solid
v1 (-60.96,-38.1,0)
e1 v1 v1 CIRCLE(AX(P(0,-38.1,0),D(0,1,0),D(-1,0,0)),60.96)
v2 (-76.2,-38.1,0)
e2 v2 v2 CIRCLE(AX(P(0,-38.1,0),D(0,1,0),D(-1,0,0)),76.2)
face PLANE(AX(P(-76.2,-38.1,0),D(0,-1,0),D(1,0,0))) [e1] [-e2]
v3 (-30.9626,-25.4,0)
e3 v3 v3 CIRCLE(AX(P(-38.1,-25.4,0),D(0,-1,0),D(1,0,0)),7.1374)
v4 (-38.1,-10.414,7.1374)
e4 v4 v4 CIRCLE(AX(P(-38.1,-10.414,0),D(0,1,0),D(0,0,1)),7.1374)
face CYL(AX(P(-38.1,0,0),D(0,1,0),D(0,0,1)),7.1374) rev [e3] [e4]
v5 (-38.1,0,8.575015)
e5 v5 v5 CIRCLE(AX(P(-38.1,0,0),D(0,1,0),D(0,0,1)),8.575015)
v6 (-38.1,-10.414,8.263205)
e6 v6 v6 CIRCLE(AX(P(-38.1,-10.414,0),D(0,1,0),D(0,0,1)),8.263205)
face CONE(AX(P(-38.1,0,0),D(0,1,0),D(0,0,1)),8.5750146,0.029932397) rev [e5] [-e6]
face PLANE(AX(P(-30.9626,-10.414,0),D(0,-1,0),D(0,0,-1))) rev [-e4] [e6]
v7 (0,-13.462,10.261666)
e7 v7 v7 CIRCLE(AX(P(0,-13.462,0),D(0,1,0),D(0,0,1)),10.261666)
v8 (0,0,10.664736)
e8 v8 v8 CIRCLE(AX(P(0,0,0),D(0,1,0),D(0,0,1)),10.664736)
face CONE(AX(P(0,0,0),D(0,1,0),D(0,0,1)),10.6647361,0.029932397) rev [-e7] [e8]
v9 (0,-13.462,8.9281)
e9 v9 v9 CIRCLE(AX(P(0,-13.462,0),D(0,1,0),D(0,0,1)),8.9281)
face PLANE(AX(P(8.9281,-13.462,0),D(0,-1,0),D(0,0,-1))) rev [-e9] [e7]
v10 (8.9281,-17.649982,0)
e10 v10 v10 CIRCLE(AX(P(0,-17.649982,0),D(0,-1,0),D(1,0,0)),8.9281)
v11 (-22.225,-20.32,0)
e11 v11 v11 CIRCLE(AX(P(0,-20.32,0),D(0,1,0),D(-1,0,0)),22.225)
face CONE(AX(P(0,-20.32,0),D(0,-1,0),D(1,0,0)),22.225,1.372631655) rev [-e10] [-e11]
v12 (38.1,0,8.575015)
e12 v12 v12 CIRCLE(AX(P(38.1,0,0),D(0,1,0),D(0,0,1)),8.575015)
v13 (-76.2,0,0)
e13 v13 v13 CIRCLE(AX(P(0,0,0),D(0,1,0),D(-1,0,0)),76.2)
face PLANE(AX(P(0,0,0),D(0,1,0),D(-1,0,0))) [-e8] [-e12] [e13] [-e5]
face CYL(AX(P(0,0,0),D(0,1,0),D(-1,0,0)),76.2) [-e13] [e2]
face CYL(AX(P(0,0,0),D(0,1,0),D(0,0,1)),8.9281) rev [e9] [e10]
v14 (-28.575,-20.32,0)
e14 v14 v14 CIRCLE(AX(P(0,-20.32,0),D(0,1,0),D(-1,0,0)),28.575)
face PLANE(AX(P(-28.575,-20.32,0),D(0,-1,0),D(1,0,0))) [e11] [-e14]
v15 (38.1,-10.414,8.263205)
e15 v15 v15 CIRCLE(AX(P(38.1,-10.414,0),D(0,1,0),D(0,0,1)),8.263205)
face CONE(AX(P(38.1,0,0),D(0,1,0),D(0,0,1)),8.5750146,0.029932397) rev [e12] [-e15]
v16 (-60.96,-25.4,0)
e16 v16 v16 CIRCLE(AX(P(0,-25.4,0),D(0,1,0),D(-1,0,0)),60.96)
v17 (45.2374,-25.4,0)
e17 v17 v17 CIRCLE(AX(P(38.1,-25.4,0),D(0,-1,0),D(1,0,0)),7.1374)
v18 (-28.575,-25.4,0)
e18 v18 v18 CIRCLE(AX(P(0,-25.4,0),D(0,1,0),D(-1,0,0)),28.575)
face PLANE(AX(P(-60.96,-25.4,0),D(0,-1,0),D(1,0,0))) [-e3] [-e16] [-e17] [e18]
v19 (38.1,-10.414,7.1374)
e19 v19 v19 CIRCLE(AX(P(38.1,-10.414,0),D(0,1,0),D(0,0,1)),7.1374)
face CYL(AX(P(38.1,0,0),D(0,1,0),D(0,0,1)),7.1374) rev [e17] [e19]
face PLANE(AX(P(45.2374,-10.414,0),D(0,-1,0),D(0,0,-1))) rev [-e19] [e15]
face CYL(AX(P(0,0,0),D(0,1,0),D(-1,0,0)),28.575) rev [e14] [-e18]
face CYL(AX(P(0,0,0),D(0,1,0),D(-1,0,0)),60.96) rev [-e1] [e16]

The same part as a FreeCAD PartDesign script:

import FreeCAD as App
import Part
import Sketcher

V = App.Vector
Q = App.Units.Quantity

doc = App.newDocument("Part")
body = doc.addObject("PartDesign::Body", "Body")

sketch1 = body.newObject("Sketcher::SketchObject", "Sketch")
sketch1.AttachmentSupport = (doc.getObject("XY_Plane"), [""])
sketch1.MapMode = "FlatFace"
sketch1.addGeometry(Part.LineSegment(V(0, 0, 0), V(-76, 0, 0)), False)
sketch1.addGeometry(Part.LineSegment(V(-76, 0, 0), V(-76, -38, 0)), False)
sketch1.addGeometry(Part.LineSegment(V(-76, -38, 0), V(-61, -38, 0)), False)
sketch1.addGeometry(Part.LineSegment(V(-61, -38, 0), V(-61, -25, 0)), False)
sketch1.addGeometry(Part.LineSegment(V(-61, -25, 0), V(-29, -25, 0)), False)
sketch1.addGeometry(Part.LineSegment(V(-29, -25, 0), V(-29, -20, 0)), False)
sketch1.addGeometry(Part.LineSegment(V(-29, -20, 0), V(-22, -20, 0)), False)
sketch1.addGeometry(Part.LineSegment(V(-22, -20, 0), V(0, -16, 0)), False)
sketch1.addGeometry(Part.LineSegment(V(0, -16, 0), V(0, 0, 0)), False)
sketch1.addConstraint(Sketcher.Constraint("Coincident", 0, 2, 1, 1))
sketch1.addConstraint(Sketcher.Constraint("Coincident", 1, 2, 2, 1))
sketch1.addConstraint(Sketcher.Constraint("Coincident", 2, 2, 3, 1))
sketch1.addConstraint(Sketcher.Constraint("Coincident", 3, 2, 4, 1))
sketch1.addConstraint(Sketcher.Constraint("Coincident", 4, 2, 5, 1))
sketch1.addConstraint(Sketcher.Constraint("Coincident", 5, 2, 6, 1))
sketch1.addConstraint(Sketcher.Constraint("Coincident", 6, 2, 7, 1))
sketch1.addConstraint(Sketcher.Constraint("Coincident", 7, 2, 8, 1))
sketch1.addConstraint(Sketcher.Constraint("Coincident", 8, 2, 0, 1))
sketch1.addConstraint(Sketcher.Constraint("Horizontal", 0))
sketch1.addConstraint(Sketcher.Constraint("Vertical", 1))
sketch1.addConstraint(Sketcher.Constraint("Horizontal", 2))
sketch1.addConstraint(Sketcher.Constraint("Vertical", 3))
sketch1.addConstraint(Sketcher.Constraint("Horizontal", 4))
sketch1.addConstraint(Sketcher.Constraint("Vertical", 5))
sketch1.addConstraint(Sketcher.Constraint("Horizontal", 6))
sketch1.addConstraint(Sketcher.Constraint("Vertical", 8))
sketch1.addConstraint(Sketcher.Constraint("Coincident", 8, 2, -1, 1))
sketch1.addConstraint(Sketcher.Constraint("DistanceX", 0, 2, 0, 1, Q("3 in")))
sketch1.addConstraint(Sketcher.Constraint("DistanceX", 2, 1, 2, 2, Q("0.6 in")))
sketch1.addConstraint(Sketcher.Constraint("DistanceY", 1, 2, 1, 1, Q("1.5 in")))
sketch1.addConstraint(Sketcher.Constraint("DistanceY", 3, 1, 3, 2, Q("0.5 in")))
sketch1.addConstraint(Sketcher.Constraint("DistanceY", 5, 1, 5, 2, Q("0.2 in")))
sketch1.addConstraint(Sketcher.Constraint("DistanceX", 6, 1, 6, 2, Q("0.25 in")))
sketch1.addConstraint(Sketcher.Constraint("DistanceX", 4, 1, 4, 2, Q("1.275 in")))
sketch1.addConstraint(Sketcher.Constraint("DistanceY", 8, 1, 8, 2, Q("0.6243 in")))
revolution = body.newObject("PartDesign::Revolution", "Revolution")
revolution.Profile = sketch1
revolution.ReferenceAxis = (sketch1, ["V_Axis"])
revolution.Angle = 360

sketch2 = body.newObject("Sketcher::SketchObject", "Sketch001")
sketch2.AttachmentSupport = (doc.getObject("YZ_Plane"), [""])
sketch2.MapMode = "FlatFace"
sketch2.addGeometry(Part.LineSegment(V(-38.1, 0, 0), V(0, 0, 0)), False)
sketch2.addGeometry(Part.LineSegment(V(0, 0, 0), V(0, 10.7, 0)), False)
sketch2.addGeometry(Part.LineSegment(V(0, 10.7, 0), V(-13.5, 10.3, 0)), False)
sketch2.addGeometry(Part.LineSegment(V(-13.5, 10.3, 0), V(-13.5, 8.9, 0)), False)
sketch2.addGeometry(Part.LineSegment(V(-13.5, 8.9, 0), V(-38.1, 8.9, 0)), False)
sketch2.addGeometry(Part.LineSegment(V(-38.1, 8.9, 0), V(-38.1, 0, 0)), False)
sketch2.addConstraint(Sketcher.Constraint("Coincident", 0, 2, 1, 1))
sketch2.addConstraint(Sketcher.Constraint("Coincident", 1, 2, 2, 1))
sketch2.addConstraint(Sketcher.Constraint("Coincident", 2, 2, 3, 1))
sketch2.addConstraint(Sketcher.Constraint("Coincident", 3, 2, 4, 1))
sketch2.addConstraint(Sketcher.Constraint("Coincident", 4, 2, 5, 1))
sketch2.addConstraint(Sketcher.Constraint("Coincident", 5, 2, 0, 1))
sketch2.addConstraint(Sketcher.Constraint("Horizontal", 0))
sketch2.addConstraint(Sketcher.Constraint("Vertical", 1))
sketch2.addConstraint(Sketcher.Constraint("Vertical", 3))
sketch2.addConstraint(Sketcher.Constraint("Horizontal", 4))
sketch2.addConstraint(Sketcher.Constraint("Vertical", 5))
sketch2.addConstraint(Sketcher.Constraint("Coincident", 0, 2, -1, 1))
sketch2.addConstraint(Sketcher.Constraint("DistanceX", 0, 1, 0, 2, Q("1.5 in")))
sketch2.addConstraint(Sketcher.Constraint("DistanceX", 4, 2, 4, 1, Q("0.97 in")))
sketch2.addConstraint(Sketcher.Constraint("DistanceY", 5, 2, 5, 1, Q("0.3515 in")))
sketch2.addConstraint(Sketcher.Constraint("DistanceY", 1, 1, 1, 2, 10.664736))
sketch2.addConstraint(Sketcher.Constraint("DistanceY", 3, 2, 3, 1, 1.333566))
groove = body.newObject("PartDesign::Groove", "Groove")
groove.Profile = sketch2
groove.ReferenceAxis = (sketch2, ["H_Axis"])
groove.Angle = 360

sketch3 = body.newObject("Sketcher::SketchObject", "Sketch002")
sketch3.AttachmentSupport = (doc.getObject("YZ_Plane"), [""])
sketch3.MapMode = "FlatFace"
sketch3.AttachmentOffset = App.Placement(V(0, 0, -1.5 * 25.4), App.Rotation())
sketch3.addGeometry(Part.LineSegment(V(-38.1, 0, 0), V(0, 0, 0)), False)
sketch3.addGeometry(Part.LineSegment(V(0, 0, 0), V(0, 8.6, 0)), False)
sketch3.addGeometry(Part.LineSegment(V(0, 8.6, 0), V(-10.4, 8.3, 0)), False)
sketch3.addGeometry(Part.LineSegment(V(-10.4, 8.3, 0), V(-10.4, 7.1, 0)), False)
sketch3.addGeometry(Part.LineSegment(V(-10.4, 7.1, 0), V(-38.1, 7.1, 0)), False)
sketch3.addGeometry(Part.LineSegment(V(-38.1, 7.1, 0), V(-38.1, 0, 0)), False)
sketch3.addConstraint(Sketcher.Constraint("Coincident", 0, 2, 1, 1))
sketch3.addConstraint(Sketcher.Constraint("Coincident", 1, 2, 2, 1))
sketch3.addConstraint(Sketcher.Constraint("Coincident", 2, 2, 3, 1))
sketch3.addConstraint(Sketcher.Constraint("Coincident", 3, 2, 4, 1))
sketch3.addConstraint(Sketcher.Constraint("Coincident", 4, 2, 5, 1))
sketch3.addConstraint(Sketcher.Constraint("Coincident", 5, 2, 0, 1))
sketch3.addConstraint(Sketcher.Constraint("Horizontal", 0))
sketch3.addConstraint(Sketcher.Constraint("Vertical", 1))
sketch3.addConstraint(Sketcher.Constraint("Vertical", 3))
sketch3.addConstraint(Sketcher.Constraint("Horizontal", 4))
sketch3.addConstraint(Sketcher.Constraint("Vertical", 5))
sketch3.addConstraint(Sketcher.Constraint("Coincident", 0, 2, -1, 1))
sketch3.addConstraint(Sketcher.Constraint("DistanceX", 0, 1, 0, 2, Q("1.5 in")))
sketch3.addConstraint(Sketcher.Constraint("DistanceX", 4, 2, 4, 1, Q("1.09 in")))
sketch3.addConstraint(Sketcher.Constraint("DistanceY", 5, 2, 5, 1, Q("0.281 in")))
sketch3.addConstraint(Sketcher.Constraint("DistanceY", 1, 1, 1, 2, 8.575015))
sketch3.addConstraint(Sketcher.Constraint("DistanceY", 3, 2, 3, 1, 1.125805))
groove2 = body.newObject("PartDesign::Groove", "Groove001")
groove2.Profile = sketch3
groove2.ReferenceAxis = (sketch3, ["H_Axis"])
groove2.Angle = 360
doc.recompute()

linearpattern = body.newObject("PartDesign::LinearPattern", "LinearPattern")
linearpattern.Originals = [groove2]
linearpattern.Direction = (doc.getObject("X_Axis"), [""])
linearpattern.Mode = "offset"
linearpattern.Offset = Q("3 in")
linearpattern.Occurrences = 2
body.Tip = linearpattern

doc.recompute()
